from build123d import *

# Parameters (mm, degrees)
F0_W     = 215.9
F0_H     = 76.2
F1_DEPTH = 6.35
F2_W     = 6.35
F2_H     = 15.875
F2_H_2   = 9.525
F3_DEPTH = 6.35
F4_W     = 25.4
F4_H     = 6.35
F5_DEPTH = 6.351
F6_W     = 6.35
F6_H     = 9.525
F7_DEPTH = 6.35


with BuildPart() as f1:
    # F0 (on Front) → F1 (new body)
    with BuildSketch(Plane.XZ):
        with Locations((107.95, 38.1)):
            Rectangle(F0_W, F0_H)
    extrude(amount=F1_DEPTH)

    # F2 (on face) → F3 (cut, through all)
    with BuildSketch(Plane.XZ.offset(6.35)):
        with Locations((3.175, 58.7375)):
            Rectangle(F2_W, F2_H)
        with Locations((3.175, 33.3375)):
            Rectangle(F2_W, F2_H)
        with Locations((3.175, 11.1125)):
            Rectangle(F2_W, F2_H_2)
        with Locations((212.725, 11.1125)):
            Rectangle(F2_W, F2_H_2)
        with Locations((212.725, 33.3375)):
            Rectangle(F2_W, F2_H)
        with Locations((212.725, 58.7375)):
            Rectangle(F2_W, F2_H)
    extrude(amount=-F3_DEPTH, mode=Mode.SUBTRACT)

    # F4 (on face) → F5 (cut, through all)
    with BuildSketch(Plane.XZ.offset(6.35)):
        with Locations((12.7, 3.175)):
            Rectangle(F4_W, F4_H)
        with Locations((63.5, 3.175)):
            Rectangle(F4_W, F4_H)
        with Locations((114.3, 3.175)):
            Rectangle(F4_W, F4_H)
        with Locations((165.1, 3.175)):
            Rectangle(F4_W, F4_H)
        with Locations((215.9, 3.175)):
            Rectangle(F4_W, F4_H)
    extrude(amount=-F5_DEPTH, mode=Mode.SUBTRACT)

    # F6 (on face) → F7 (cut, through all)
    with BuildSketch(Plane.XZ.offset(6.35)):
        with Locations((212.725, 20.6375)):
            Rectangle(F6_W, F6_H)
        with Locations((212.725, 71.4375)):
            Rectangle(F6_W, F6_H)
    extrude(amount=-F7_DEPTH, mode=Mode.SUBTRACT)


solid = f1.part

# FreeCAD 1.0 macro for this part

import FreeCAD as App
import Part
import Sketcher
from FreeCAD import Vector
Q = App.Units.Quantity

doc = App.newDocument("Part")
body = doc.addObject("PartDesign::Body", "Body")

sketch1 = body.newObject("Sketcher::SketchObject", "Sketch")
sketch1.AttachmentSupport = (doc.getObject("XZ_Plane"), [""])
sketch1.MapMode = "FlatFace"
sketch1.addGeometry([
    Part.LineSegment(Vector(0, 76.2, 0), Vector(0, 0, 0)),
    Part.LineSegment(Vector(0, 0, 0), Vector(215.9, 0, 0)),
    Part.LineSegment(Vector(215.9, 0, 0), Vector(215.9, 76.2, 0)),
    Part.LineSegment(Vector(215.9, 76.2, 0), Vector(0, 76.2, 0)),
], False)
sketch1.addConstraint([
    Sketcher.Constraint("Coincident", 0, 2, 1, 1),
    Sketcher.Constraint("Coincident", 1, 2, 2, 1),
    Sketcher.Constraint("Coincident", 2, 2, 3, 1),
    Sketcher.Constraint("Coincident", 3, 2, 0, 1),
    Sketcher.Constraint("Vertical", 0),
    Sketcher.Constraint("Horizontal", 1),
    Sketcher.Constraint("Vertical", 2),
    Sketcher.Constraint("Horizontal", 3),
    Sketcher.Constraint("Coincident", 0, 2, -1, 1),
    Sketcher.Constraint("DistanceY", 0, 2, 0, 1, Q("3 in")),
    Sketcher.Constraint("DistanceX", 1, 1, 1, 2, Q("8.5 in")),
])
pad1 = body.newObject("PartDesign::Pad", "Pad")
pad1.Profile = sketch1
pad1.Length = Q("0.25 in")

sketch2 = body.newObject("Sketcher::SketchObject", "Sketch001")
sketch2.AttachmentSupport = (doc.getObject("XZ_Plane"), [""])
sketch2.MapMode = "FlatFace"
sketch2.AttachmentOffset = App.Placement(Vector(0, 0, 0.25 * 25.4), App.Rotation())
sketch2.addGeometry([
    Part.LineSegment(Vector(0, 66.675, 0), Vector(0, 50.8, 0)),
    Part.LineSegment(Vector(0, 50.8, 0), Vector(6.35, 50.8, 0)),
    Part.LineSegment(Vector(6.35, 50.8, 0), Vector(6.35, 66.675, 0)),
    Part.LineSegment(Vector(6.35, 66.675, 0), Vector(0, 66.675, 0)),
    Part.LineSegment(Vector(0, 41.275, 0), Vector(0, 25.4, 0)),
    Part.LineSegment(Vector(0, 25.4, 0), Vector(6.35, 25.4, 0)),
    Part.LineSegment(Vector(6.35, 25.4, 0), Vector(6.35, 41.275, 0)),
    Part.LineSegment(Vector(6.35, 41.275, 0), Vector(0, 41.275, 0)),
    Part.LineSegment(Vector(0, 15.875, 0), Vector(0, 6.35, 0)),
    Part.LineSegment(Vector(0, 6.35, 0), Vector(6.35, 6.35, 0)),
    Part.LineSegment(Vector(6.35, 6.35, 0), Vector(6.35, 15.875, 0)),
    Part.LineSegment(Vector(6.35, 15.875, 0), Vector(0, 15.875, 0)),
    Part.LineSegment(Vector(209.55, 15.875, 0), Vector(209.55, 6.35, 0)),
    Part.LineSegment(Vector(209.55, 6.35, 0), Vector(215.9, 6.35, 0)),
    Part.LineSegment(Vector(215.9, 6.35, 0), Vector(215.9, 15.875, 0)),
    Part.LineSegment(Vector(215.9, 15.875, 0), Vector(209.55, 15.875, 0)),
    Part.LineSegment(Vector(209.55, 41.275, 0), Vector(209.55, 25.4, 0)),
    Part.LineSegment(Vector(209.55, 25.4, 0), Vector(215.9, 25.4, 0)),
    Part.LineSegment(Vector(215.9, 25.4, 0), Vector(215.9, 41.275, 0)),
    Part.LineSegment(Vector(215.9, 41.275, 0), Vector(209.55, 41.275, 0)),
    Part.LineSegment(Vector(209.55, 66.675, 0), Vector(209.55, 50.8, 0)),
    Part.LineSegment(Vector(209.55, 50.8, 0), Vector(215.9, 50.8, 0)),
    Part.LineSegment(Vector(215.9, 50.8, 0), Vector(215.9, 66.675, 0)),
    Part.LineSegment(Vector(215.9, 66.675, 0), Vector(209.55, 66.675, 0)),
], False)
sketch2.addConstraint([
    Sketcher.Constraint("Coincident", 0, 2, 1, 1),
    Sketcher.Constraint("Coincident", 1, 2, 2, 1),
    Sketcher.Constraint("Coincident", 2, 2, 3, 1),
    Sketcher.Constraint("Coincident", 3, 2, 0, 1),
    Sketcher.Constraint("Coincident", 4, 2, 5, 1),
    Sketcher.Constraint("Coincident", 5, 2, 6, 1),
    Sketcher.Constraint("Coincident", 6, 2, 7, 1),
    Sketcher.Constraint("Coincident", 7, 2, 4, 1),
    Sketcher.Constraint("Coincident", 8, 2, 9, 1),
    Sketcher.Constraint("Coincident", 9, 2, 10, 1),
    Sketcher.Constraint("Coincident", 10, 2, 11, 1),
    Sketcher.Constraint("Coincident", 11, 2, 8, 1),
    Sketcher.Constraint("Coincident", 12, 2, 13, 1),
    Sketcher.Constraint("Coincident", 13, 2, 14, 1),
    Sketcher.Constraint("Coincident", 14, 2, 15, 1),
    Sketcher.Constraint("Coincident", 15, 2, 12, 1),
    Sketcher.Constraint("Coincident", 16, 2, 17, 1),
    Sketcher.Constraint("Coincident", 17, 2, 18, 1),
    Sketcher.Constraint("Coincident", 18, 2, 19, 1),
    Sketcher.Constraint("Coincident", 19, 2, 16, 1),
    Sketcher.Constraint("Coincident", 20, 2, 21, 1),
    Sketcher.Constraint("Coincident", 21, 2, 22, 1),
    Sketcher.Constraint("Coincident", 22, 2, 23, 1),
    Sketcher.Constraint("Coincident", 23, 2, 20, 1),
    Sketcher.Constraint("Vertical", 0),
    Sketcher.Constraint("Horizontal", 1),
    Sketcher.Constraint("Vertical", 2),
    Sketcher.Constraint("Horizontal", 3),
    Sketcher.Constraint("Vertical", 4),
    Sketcher.Constraint("Horizontal", 5),
    Sketcher.Constraint("Vertical", 6),
    Sketcher.Constraint("Horizontal", 7),
    Sketcher.Constraint("Vertical", 8),
    Sketcher.Constraint("Horizontal", 9),
    Sketcher.Constraint("Vertical", 10),
    Sketcher.Constraint("Horizontal", 11),
    Sketcher.Constraint("Vertical", 12),
    Sketcher.Constraint("Horizontal", 13),
    Sketcher.Constraint("Vertical", 14),
    Sketcher.Constraint("Horizontal", 15),
    Sketcher.Constraint("Vertical", 16),
    Sketcher.Constraint("Horizontal", 17),
    Sketcher.Constraint("Vertical", 18),
    Sketcher.Constraint("Horizontal", 19),
    Sketcher.Constraint("Vertical", 20),
    Sketcher.Constraint("Horizontal", 21),
    Sketcher.Constraint("Vertical", 22),
    Sketcher.Constraint("Horizontal", 23),
    Sketcher.Constraint("PointOnObject", 0, 2, -2),
    Sketcher.Constraint("PointOnObject", 4, 2, -2),
    Sketcher.Constraint("PointOnObject", 8, 2, -2),
    Sketcher.Constraint("Horizontal", 9, 2, 12, 2),
    Sketcher.Constraint("Horizontal", 11, 2, 14, 2),
    Sketcher.Constraint("Horizontal", 5, 2, 16, 2),
    Sketcher.Constraint("Horizontal", 7, 2, 18, 2),
    Sketcher.Constraint("Horizontal", 1, 2, 20, 2),
    Sketcher.Constraint("Horizontal", 3, 2, 22, 2),
    Sketcher.Constraint("Vertical", 2, 2, 5, 2),
    Sketcher.Constraint("Vertical", 6, 2, 9, 2),
    Sketcher.Constraint("Vertical", 15, 2, 16, 2),
    Sketcher.Constraint("Vertical", 14, 2, 17, 2),
    Sketcher.Constraint("Vertical", 19, 2, 20, 2),
    Sketcher.Constraint("Vertical", 18, 2, 21, 2),
    Sketcher.Constraint("Equal", 11, 13),
    Sketcher.Constraint("Equal", 2, 4),
    Sketcher.Constraint("DistanceY", -1, 1, 0, 2, Q("2 in")),
    Sketcher.Constraint("DistanceY", -1, 1, 4, 2, Q("1 in")),
    Sketcher.Constraint("DistanceY", 10, 2, 6, 2, Q("1 in")),
    Sketcher.Constraint("DistanceX", 9, 2, 12, 2, Q("8 in")),
    Sketcher.Constraint("DistanceX", 1, 1, 1, 2, Q("0.25 in")),
    Sketcher.Constraint("DistanceY", 0, 2, 0, 1, Q("0.625 in")),
    Sketcher.Constraint("DistanceY", 8, 2, 8, 1, Q("0.375 in")),
])
pocket1 = body.newObject("PartDesign::Pocket", "Pocket")
pocket1.Profile = sketch2
pocket1.Type = "ThroughAll"

sketch3 = body.newObject("Sketcher::SketchObject", "Sketch002")
sketch3.AttachmentSupport = (doc.getObject("XZ_Plane"), [""])
sketch3.MapMode = "FlatFace"
sketch3.AttachmentOffset = App.Placement(Vector(0, 0, 0.25 * 25.4), App.Rotation())
sketch3.addGeometry([
    Part.LineSegment(Vector(0, 6.35, 0), Vector(0, 0, 0)),
    Part.LineSegment(Vector(0, 0, 0), Vector(25.4, 0, 0)),
    Part.LineSegment(Vector(25.4, 0, 0), Vector(25.4, 6.35, 0)),
    Part.LineSegment(Vector(25.4, 6.35, 0), Vector(0, 6.35, 0)),
    Part.LineSegment(Vector(50.8, 6.35, 0), Vector(50.8, 0, 0)),
    Part.LineSegment(Vector(50.8, 0, 0), Vector(76.2, 0, 0)),
    Part.LineSegment(Vector(76.2, 0, 0), Vector(76.2, 6.35, 0)),
    Part.LineSegment(Vector(76.2, 6.35, 0), Vector(50.8, 6.35, 0)),
    Part.LineSegment(Vector(101.6, 6.35, 0), Vector(101.6, 0, 0)),
    Part.LineSegment(Vector(101.6, 0, 0), Vector(127, 0, 0)),
    Part.LineSegment(Vector(127, 0, 0), Vector(127, 6.35, 0)),
    Part.LineSegment(Vector(127, 6.35, 0), Vector(101.6, 6.35, 0)),
    Part.LineSegment(Vector(152.4, 6.35, 0), Vector(152.4, 0, 0)),
    Part.LineSegment(Vector(152.4, 0, 0), Vector(177.8, 0, 0)),
    Part.LineSegment(Vector(177.8, 0, 0), Vector(177.8, 6.35, 0)),
    Part.LineSegment(Vector(177.8, 6.35, 0), Vector(152.4, 6.35, 0)),
    Part.LineSegment(Vector(203.2, 6.35, 0), Vector(203.2, 0, 0)),
    Part.LineSegment(Vector(203.2, 0, 0), Vector(228.6, 0, 0)),
    Part.LineSegment(Vector(228.6, 0, 0), Vector(228.6, 6.35, 0)),
    Part.LineSegment(Vector(228.6, 6.35, 0), Vector(203.2, 6.35, 0)),
], False)
sketch3.addConstraint([
    Sketcher.Constraint("Coincident", 0, 2, 1, 1),
    Sketcher.Constraint("Coincident", 1, 2, 2, 1),
    Sketcher.Constraint("Coincident", 2, 2, 3, 1),
    Sketcher.Constraint("Coincident", 3, 2, 0, 1),
    Sketcher.Constraint("Coincident", 4, 2, 5, 1),
    Sketcher.Constraint("Coincident", 5, 2, 6, 1),
    Sketcher.Constraint("Coincident", 6, 2, 7, 1),
    Sketcher.Constraint("Coincident", 7, 2, 4, 1),
    Sketcher.Constraint("Coincident", 8, 2, 9, 1),
    Sketcher.Constraint("Coincident", 9, 2, 10, 1),
    Sketcher.Constraint("Coincident", 10, 2, 11, 1),
    Sketcher.Constraint("Coincident", 11, 2, 8, 1),
    Sketcher.Constraint("Coincident", 12, 2, 13, 1),
    Sketcher.Constraint("Coincident", 13, 2, 14, 1),
    Sketcher.Constraint("Coincident", 14, 2, 15, 1),
    Sketcher.Constraint("Coincident", 15, 2, 12, 1),
    Sketcher.Constraint("Coincident", 16, 2, 17, 1),
    Sketcher.Constraint("Coincident", 17, 2, 18, 1),
    Sketcher.Constraint("Coincident", 18, 2, 19, 1),
    Sketcher.Constraint("Coincident", 19, 2, 16, 1),
    Sketcher.Constraint("Vertical", 0),
    Sketcher.Constraint("Horizontal", 1),
    Sketcher.Constraint("Vertical", 2),
    Sketcher.Constraint("Horizontal", 3),
    Sketcher.Constraint("Vertical", 4),
    Sketcher.Constraint("Horizontal", 5),
    Sketcher.Constraint("Vertical", 6),
    Sketcher.Constraint("Horizontal", 7),
    Sketcher.Constraint("Vertical", 8),
    Sketcher.Constraint("Horizontal", 9),
    Sketcher.Constraint("Vertical", 10),
    Sketcher.Constraint("Horizontal", 11),
    Sketcher.Constraint("Vertical", 12),
    Sketcher.Constraint("Horizontal", 13),
    Sketcher.Constraint("Vertical", 14),
    Sketcher.Constraint("Horizontal", 15),
    Sketcher.Constraint("Vertical", 16),
    Sketcher.Constraint("Horizontal", 17),
    Sketcher.Constraint("Vertical", 18),
    Sketcher.Constraint("Horizontal", 19),
    Sketcher.Constraint("Coincident", 0, 2, -1, 1),
    Sketcher.Constraint("PointOnObject", 4, 2, -1),
    Sketcher.Constraint("PointOnObject", 8, 2, -1),
    Sketcher.Constraint("PointOnObject", 12, 2, -1),
    Sketcher.Constraint("PointOnObject", 16, 2, -1),
    Sketcher.Constraint("Horizontal", 3, 2, 6, 2),
    Sketcher.Constraint("Horizontal", 7, 2, 10, 2),
    Sketcher.Constraint("Horizontal", 11, 2, 14, 2),
    Sketcher.Constraint("Horizontal", 15, 2, 18, 2),
    Sketcher.Constraint("Equal", 3, 5),
    Sketcher.Constraint("Equal", 7, 9),
    Sketcher.Constraint("Equal", 11, 13),
    Sketcher.Constraint("Equal", 15, 17),
    Sketcher.Constraint("DistanceX", 1, 1, 1, 2, Q("1 in")),
    Sketcher.Constraint("DistanceX", -1, 1, 4, 2, Q("2 in")),
    Sketcher.Constraint("DistanceX", -1, 1, 8, 2, Q("4 in")),
    Sketcher.Constraint("DistanceX", -1, 1, 12, 2, Q("6 in")),
    Sketcher.Constraint("DistanceX", -1, 1, 16, 2, Q("8 in")),
    Sketcher.Constraint("DistanceY", 0, 2, 0, 1, Q("0.25 in")),
])
pocket2 = body.newObject("PartDesign::Pocket", "Pocket001")
pocket2.Profile = sketch3
pocket2.Type = "ThroughAll"

sketch4 = body.newObject("Sketcher::SketchObject", "Sketch003")
sketch4.AttachmentSupport = (doc.getObject("XZ_Plane"), [""])
sketch4.MapMode = "FlatFace"
sketch4.AttachmentOffset = App.Placement(Vector(0, 0, 0.25 * 25.4), App.Rotation())
sketch4.addGeometry([
    Part.LineSegment(Vector(209.55, 25.4, 0), Vector(209.55, 15.875, 0)),
    Part.LineSegment(Vector(209.55, 15.875, 0), Vector(215.9, 15.875, 0)),
    Part.LineSegment(Vector(215.9, 15.875, 0), Vector(215.9, 25.4, 0)),
    Part.LineSegment(Vector(215.9, 25.4, 0), Vector(209.55, 25.4, 0)),
    Part.LineSegment(Vector(209.55, 76.2, 0), Vector(209.55, 66.675, 0)),
    Part.LineSegment(Vector(209.55, 66.675, 0), Vector(215.9, 66.675, 0)),
    Part.LineSegment(Vector(215.9, 66.675, 0), Vector(215.9, 76.2, 0)),
    Part.LineSegment(Vector(215.9, 76.2, 0), Vector(209.55, 76.2, 0)),
], False)
sketch4.addConstraint([
    Sketcher.Constraint("Coincident", 0, 2, 1, 1),
    Sketcher.Constraint("Coincident", 1, 2, 2, 1),
    Sketcher.Constraint("Coincident", 2, 2, 3, 1),
    Sketcher.Constraint("Coincident", 3, 2, 0, 1),
    Sketcher.Constraint("Coincident", 4, 2, 5, 1),
    Sketcher.Constraint("Coincident", 5, 2, 6, 1),
    Sketcher.Constraint("Coincident", 6, 2, 7, 1),
    Sketcher.Constraint("Coincident", 7, 2, 4, 1),
    Sketcher.Constraint("Vertical", 0),
    Sketcher.Constraint("Horizontal", 1),
    Sketcher.Constraint("Vertical", 2),
    Sketcher.Constraint("Horizontal", 3),
    Sketcher.Constraint("Vertical", 4),
    Sketcher.Constraint("Horizontal", 5),
    Sketcher.Constraint("Vertical", 6),
    Sketcher.Constraint("Horizontal", 7),
    Sketcher.Constraint("Vertical", 3, 2, 4, 2),
    Sketcher.Constraint("Vertical", 2, 2, 5, 2),
    Sketcher.Constraint("Equal", 2, 4),
    Sketcher.Constraint("DistanceY", -1, 1, 2, 2, Q("1 in")),
    Sketcher.Constraint("DistanceY", -1, 1, 6, 2, Q("3 in")),
    Sketcher.Constraint("DistanceX", 1, 1, 1, 2, Q("0.25 in")),
    Sketcher.Constraint("DistanceX", -1, 1, 1, 2, Q("8.5 in")),
    Sketcher.Constraint("DistanceY", 0, 2, 0, 1, Q("0.375 in")),
])
pocket3 = body.newObject("PartDesign::Pocket", "Pocket002")
pocket3.Profile = sketch4
pocket3.Type = "ThroughAll"

doc.recompute()
